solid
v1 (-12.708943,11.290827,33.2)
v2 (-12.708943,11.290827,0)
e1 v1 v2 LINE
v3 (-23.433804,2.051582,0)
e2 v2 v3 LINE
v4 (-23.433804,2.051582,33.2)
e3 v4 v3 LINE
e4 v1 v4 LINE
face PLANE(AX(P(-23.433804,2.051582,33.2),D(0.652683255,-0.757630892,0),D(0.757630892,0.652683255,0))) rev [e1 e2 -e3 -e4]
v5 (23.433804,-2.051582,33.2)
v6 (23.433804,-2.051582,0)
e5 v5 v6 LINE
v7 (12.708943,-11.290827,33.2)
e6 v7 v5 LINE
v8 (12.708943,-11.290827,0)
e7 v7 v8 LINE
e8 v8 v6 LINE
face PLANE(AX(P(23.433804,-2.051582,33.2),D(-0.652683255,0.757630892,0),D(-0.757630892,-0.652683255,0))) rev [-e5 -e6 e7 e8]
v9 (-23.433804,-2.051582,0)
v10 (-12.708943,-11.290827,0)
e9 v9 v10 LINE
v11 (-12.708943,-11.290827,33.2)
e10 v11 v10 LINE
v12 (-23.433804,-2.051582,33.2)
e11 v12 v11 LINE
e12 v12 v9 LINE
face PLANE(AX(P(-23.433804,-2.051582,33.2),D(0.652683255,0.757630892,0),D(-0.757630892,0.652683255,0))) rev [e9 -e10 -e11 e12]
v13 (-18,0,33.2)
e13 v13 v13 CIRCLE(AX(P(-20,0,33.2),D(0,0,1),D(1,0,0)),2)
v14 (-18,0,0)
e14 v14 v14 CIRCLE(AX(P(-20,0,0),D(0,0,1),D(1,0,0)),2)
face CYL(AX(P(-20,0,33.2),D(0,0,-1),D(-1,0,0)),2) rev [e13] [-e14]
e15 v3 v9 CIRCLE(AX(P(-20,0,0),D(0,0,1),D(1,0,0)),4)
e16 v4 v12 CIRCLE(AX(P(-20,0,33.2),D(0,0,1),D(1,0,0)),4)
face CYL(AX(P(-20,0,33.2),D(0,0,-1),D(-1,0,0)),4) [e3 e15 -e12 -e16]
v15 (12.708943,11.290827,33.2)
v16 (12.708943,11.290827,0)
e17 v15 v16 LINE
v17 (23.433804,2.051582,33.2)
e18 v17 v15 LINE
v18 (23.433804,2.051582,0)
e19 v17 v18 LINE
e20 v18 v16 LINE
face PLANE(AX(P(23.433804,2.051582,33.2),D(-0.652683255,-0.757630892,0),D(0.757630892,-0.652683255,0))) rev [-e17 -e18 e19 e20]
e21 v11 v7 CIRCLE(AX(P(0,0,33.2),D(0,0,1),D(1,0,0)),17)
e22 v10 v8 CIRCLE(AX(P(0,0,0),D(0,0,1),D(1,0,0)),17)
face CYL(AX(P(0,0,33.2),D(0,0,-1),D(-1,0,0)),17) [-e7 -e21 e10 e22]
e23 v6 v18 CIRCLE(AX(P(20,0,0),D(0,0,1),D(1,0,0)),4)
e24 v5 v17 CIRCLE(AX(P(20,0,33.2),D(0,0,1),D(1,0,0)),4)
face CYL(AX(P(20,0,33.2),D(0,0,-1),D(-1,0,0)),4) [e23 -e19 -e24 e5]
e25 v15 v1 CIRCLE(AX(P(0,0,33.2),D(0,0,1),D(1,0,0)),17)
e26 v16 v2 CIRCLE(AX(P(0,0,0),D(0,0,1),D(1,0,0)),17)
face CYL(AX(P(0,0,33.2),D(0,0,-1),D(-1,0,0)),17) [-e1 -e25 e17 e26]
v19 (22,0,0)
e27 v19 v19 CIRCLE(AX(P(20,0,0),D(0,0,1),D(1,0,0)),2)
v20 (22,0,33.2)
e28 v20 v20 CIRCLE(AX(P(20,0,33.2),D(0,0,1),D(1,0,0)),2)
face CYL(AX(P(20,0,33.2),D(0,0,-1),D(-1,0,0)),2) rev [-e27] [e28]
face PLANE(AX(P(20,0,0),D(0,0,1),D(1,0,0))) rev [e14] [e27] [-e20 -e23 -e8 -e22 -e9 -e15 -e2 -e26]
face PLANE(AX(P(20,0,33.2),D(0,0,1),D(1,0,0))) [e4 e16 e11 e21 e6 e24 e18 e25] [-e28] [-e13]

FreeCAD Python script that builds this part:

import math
import FreeCAD as App
import Part
import Sketcher
from FreeCAD import Vector
Q = App.Units.Quantity

doc = App.newDocument("Part")
params = doc.addObject("Spreadsheet::Sheet", "Params")
for row, (alias, value) in enumerate([
    ("sketch1_diameter", "4 mm"),
    ("sketch1_radius", "17 mm"),
    ("sketch1_radius2", "4 mm"),
    ("pad1_length", "33.2 mm"),
], start=1):
    params.set(f"A{row}", alias)
    params.set(f"B{row}", "=" + value)
    params.setAlias(f"B{row}", alias)

body = doc.addObject("PartDesign::Body", "Body")

sketch1 = body.newObject("Sketcher::SketchObject", "Sketch")
sketch1.AttachmentSupport = (doc.getObject("XY_Plane"), [""])
sketch1.MapMode = "FlatFace"
sketch1.addGeometry([
    Part.LineSegment(Vector(23.4, 2.1, 0), Vector(12.7, 11.3, 0)),
    Part.ArcOfCircle(Part.Circle(Vector(0, 0, 0), Vector(0, 0, 1), 17), math.radians(42), math.radians(138)),
    Part.LineSegment(Vector(-12.7, 11.3, 0), Vector(-23.4, 2.1, 0)),
    Part.ArcOfCircle(Part.Circle(Vector(-20, 0, 0), Vector(0, 0, 1), 4), math.radians(149), math.radians(211)),
    Part.LineSegment(Vector(-23.4, -2.1, 0), Vector(-12.7, -11.3, 0)),
    Part.ArcOfCircle(Part.Circle(Vector(0, 0, 0), Vector(0, 0, 1), 17), math.radians(-138), math.radians(-42)),
    Part.LineSegment(Vector(12.7, -11.3, 0), Vector(23.4, -2.1, 0)),
    Part.ArcOfCircle(Part.Circle(Vector(20, 0, 0), Vector(0, 0, 1), 4), math.radians(-31), math.radians(31)),
    Part.Circle(Vector(-20, 0, 0), Vector(0, 0, 1), 2),
    Part.Circle(Vector(20, 0, 0), Vector(0, 0, 1), 2),
], False)
sketch1.addConstraint([
    Sketcher.Constraint("Coincident", 0, 2, 1, 1),
    Sketcher.Constraint("Coincident", 1, 2, 2, 1),
    Sketcher.Constraint("Coincident", 2, 2, 3, 1),
    Sketcher.Constraint("Coincident", 3, 2, 4, 1),
    Sketcher.Constraint("Coincident", 4, 2, 5, 1),
    Sketcher.Constraint("Coincident", 5, 2, 6, 1),
    Sketcher.Constraint("Coincident", 6, 2, 7, 1),
    Sketcher.Constraint("Coincident", 7, 2, 0, 1),
    Sketcher.Constraint("Coincident", 1, 3, -1, 1),
    Sketcher.Constraint("Coincident", 5, 3, -1, 1),
    Sketcher.Constraint("Coincident", 8, 3, 3, 3),
    Sketcher.Constraint("Coincident", 9, 3, 7, 3),
    Sketcher.Constraint("Equal", 1, 5),
    Sketcher.Constraint("Equal", 3, 7),
    Sketcher.Constraint("Equal", 8, 9),
    Sketcher.Constraint("Symmetric", 3, 3, 7, 3, -1, 1),
    Sketcher.Constraint("Symmetric", 3, 2, 6, 2, -2),
    Sketcher.Constraint("Parallel", 0, 4),
    Sketcher.Constraint("Parallel", 2, 6),
    Sketcher.Constraint("Horizontal", 0, 2, 1, 2),
    Sketcher.Constraint("Horizontal", 4, 2, 5, 2),
    Sketcher.Constraint("Vertical", 2, 2, 3, 2),
    Sketcher.Constraint("Diameter", 8, Q("4 mm")),
    Sketcher.Constraint("Radius", 1, Q("17 mm")),
    Sketcher.Constraint("Radius", 3, Q("4 mm")),
    Sketcher.Constraint("DistanceX", 3, 3, -1, 1, Q("20 mm")),
    Sketcher.Constraint("DistanceY", -1, 1, 2, 2, Q("2.051582 mm")),
    Sketcher.Constraint("DistanceX", 2, 2, 1, 2, Q("10.724861 mm")),
])
sketch1.setExpression("Constraints[22]", "Params.sketch1_diameter")
sketch1.setExpression("Constraints[23]", "Params.sketch1_radius")
sketch1.setExpression("Constraints[24]", "Params.sketch1_radius2")
pad1 = body.newObject("PartDesign::Pad", "Pad")
pad1.Profile = sketch1
pad1.setExpression("Length", "Params.pad1_length")

doc.recompute()
